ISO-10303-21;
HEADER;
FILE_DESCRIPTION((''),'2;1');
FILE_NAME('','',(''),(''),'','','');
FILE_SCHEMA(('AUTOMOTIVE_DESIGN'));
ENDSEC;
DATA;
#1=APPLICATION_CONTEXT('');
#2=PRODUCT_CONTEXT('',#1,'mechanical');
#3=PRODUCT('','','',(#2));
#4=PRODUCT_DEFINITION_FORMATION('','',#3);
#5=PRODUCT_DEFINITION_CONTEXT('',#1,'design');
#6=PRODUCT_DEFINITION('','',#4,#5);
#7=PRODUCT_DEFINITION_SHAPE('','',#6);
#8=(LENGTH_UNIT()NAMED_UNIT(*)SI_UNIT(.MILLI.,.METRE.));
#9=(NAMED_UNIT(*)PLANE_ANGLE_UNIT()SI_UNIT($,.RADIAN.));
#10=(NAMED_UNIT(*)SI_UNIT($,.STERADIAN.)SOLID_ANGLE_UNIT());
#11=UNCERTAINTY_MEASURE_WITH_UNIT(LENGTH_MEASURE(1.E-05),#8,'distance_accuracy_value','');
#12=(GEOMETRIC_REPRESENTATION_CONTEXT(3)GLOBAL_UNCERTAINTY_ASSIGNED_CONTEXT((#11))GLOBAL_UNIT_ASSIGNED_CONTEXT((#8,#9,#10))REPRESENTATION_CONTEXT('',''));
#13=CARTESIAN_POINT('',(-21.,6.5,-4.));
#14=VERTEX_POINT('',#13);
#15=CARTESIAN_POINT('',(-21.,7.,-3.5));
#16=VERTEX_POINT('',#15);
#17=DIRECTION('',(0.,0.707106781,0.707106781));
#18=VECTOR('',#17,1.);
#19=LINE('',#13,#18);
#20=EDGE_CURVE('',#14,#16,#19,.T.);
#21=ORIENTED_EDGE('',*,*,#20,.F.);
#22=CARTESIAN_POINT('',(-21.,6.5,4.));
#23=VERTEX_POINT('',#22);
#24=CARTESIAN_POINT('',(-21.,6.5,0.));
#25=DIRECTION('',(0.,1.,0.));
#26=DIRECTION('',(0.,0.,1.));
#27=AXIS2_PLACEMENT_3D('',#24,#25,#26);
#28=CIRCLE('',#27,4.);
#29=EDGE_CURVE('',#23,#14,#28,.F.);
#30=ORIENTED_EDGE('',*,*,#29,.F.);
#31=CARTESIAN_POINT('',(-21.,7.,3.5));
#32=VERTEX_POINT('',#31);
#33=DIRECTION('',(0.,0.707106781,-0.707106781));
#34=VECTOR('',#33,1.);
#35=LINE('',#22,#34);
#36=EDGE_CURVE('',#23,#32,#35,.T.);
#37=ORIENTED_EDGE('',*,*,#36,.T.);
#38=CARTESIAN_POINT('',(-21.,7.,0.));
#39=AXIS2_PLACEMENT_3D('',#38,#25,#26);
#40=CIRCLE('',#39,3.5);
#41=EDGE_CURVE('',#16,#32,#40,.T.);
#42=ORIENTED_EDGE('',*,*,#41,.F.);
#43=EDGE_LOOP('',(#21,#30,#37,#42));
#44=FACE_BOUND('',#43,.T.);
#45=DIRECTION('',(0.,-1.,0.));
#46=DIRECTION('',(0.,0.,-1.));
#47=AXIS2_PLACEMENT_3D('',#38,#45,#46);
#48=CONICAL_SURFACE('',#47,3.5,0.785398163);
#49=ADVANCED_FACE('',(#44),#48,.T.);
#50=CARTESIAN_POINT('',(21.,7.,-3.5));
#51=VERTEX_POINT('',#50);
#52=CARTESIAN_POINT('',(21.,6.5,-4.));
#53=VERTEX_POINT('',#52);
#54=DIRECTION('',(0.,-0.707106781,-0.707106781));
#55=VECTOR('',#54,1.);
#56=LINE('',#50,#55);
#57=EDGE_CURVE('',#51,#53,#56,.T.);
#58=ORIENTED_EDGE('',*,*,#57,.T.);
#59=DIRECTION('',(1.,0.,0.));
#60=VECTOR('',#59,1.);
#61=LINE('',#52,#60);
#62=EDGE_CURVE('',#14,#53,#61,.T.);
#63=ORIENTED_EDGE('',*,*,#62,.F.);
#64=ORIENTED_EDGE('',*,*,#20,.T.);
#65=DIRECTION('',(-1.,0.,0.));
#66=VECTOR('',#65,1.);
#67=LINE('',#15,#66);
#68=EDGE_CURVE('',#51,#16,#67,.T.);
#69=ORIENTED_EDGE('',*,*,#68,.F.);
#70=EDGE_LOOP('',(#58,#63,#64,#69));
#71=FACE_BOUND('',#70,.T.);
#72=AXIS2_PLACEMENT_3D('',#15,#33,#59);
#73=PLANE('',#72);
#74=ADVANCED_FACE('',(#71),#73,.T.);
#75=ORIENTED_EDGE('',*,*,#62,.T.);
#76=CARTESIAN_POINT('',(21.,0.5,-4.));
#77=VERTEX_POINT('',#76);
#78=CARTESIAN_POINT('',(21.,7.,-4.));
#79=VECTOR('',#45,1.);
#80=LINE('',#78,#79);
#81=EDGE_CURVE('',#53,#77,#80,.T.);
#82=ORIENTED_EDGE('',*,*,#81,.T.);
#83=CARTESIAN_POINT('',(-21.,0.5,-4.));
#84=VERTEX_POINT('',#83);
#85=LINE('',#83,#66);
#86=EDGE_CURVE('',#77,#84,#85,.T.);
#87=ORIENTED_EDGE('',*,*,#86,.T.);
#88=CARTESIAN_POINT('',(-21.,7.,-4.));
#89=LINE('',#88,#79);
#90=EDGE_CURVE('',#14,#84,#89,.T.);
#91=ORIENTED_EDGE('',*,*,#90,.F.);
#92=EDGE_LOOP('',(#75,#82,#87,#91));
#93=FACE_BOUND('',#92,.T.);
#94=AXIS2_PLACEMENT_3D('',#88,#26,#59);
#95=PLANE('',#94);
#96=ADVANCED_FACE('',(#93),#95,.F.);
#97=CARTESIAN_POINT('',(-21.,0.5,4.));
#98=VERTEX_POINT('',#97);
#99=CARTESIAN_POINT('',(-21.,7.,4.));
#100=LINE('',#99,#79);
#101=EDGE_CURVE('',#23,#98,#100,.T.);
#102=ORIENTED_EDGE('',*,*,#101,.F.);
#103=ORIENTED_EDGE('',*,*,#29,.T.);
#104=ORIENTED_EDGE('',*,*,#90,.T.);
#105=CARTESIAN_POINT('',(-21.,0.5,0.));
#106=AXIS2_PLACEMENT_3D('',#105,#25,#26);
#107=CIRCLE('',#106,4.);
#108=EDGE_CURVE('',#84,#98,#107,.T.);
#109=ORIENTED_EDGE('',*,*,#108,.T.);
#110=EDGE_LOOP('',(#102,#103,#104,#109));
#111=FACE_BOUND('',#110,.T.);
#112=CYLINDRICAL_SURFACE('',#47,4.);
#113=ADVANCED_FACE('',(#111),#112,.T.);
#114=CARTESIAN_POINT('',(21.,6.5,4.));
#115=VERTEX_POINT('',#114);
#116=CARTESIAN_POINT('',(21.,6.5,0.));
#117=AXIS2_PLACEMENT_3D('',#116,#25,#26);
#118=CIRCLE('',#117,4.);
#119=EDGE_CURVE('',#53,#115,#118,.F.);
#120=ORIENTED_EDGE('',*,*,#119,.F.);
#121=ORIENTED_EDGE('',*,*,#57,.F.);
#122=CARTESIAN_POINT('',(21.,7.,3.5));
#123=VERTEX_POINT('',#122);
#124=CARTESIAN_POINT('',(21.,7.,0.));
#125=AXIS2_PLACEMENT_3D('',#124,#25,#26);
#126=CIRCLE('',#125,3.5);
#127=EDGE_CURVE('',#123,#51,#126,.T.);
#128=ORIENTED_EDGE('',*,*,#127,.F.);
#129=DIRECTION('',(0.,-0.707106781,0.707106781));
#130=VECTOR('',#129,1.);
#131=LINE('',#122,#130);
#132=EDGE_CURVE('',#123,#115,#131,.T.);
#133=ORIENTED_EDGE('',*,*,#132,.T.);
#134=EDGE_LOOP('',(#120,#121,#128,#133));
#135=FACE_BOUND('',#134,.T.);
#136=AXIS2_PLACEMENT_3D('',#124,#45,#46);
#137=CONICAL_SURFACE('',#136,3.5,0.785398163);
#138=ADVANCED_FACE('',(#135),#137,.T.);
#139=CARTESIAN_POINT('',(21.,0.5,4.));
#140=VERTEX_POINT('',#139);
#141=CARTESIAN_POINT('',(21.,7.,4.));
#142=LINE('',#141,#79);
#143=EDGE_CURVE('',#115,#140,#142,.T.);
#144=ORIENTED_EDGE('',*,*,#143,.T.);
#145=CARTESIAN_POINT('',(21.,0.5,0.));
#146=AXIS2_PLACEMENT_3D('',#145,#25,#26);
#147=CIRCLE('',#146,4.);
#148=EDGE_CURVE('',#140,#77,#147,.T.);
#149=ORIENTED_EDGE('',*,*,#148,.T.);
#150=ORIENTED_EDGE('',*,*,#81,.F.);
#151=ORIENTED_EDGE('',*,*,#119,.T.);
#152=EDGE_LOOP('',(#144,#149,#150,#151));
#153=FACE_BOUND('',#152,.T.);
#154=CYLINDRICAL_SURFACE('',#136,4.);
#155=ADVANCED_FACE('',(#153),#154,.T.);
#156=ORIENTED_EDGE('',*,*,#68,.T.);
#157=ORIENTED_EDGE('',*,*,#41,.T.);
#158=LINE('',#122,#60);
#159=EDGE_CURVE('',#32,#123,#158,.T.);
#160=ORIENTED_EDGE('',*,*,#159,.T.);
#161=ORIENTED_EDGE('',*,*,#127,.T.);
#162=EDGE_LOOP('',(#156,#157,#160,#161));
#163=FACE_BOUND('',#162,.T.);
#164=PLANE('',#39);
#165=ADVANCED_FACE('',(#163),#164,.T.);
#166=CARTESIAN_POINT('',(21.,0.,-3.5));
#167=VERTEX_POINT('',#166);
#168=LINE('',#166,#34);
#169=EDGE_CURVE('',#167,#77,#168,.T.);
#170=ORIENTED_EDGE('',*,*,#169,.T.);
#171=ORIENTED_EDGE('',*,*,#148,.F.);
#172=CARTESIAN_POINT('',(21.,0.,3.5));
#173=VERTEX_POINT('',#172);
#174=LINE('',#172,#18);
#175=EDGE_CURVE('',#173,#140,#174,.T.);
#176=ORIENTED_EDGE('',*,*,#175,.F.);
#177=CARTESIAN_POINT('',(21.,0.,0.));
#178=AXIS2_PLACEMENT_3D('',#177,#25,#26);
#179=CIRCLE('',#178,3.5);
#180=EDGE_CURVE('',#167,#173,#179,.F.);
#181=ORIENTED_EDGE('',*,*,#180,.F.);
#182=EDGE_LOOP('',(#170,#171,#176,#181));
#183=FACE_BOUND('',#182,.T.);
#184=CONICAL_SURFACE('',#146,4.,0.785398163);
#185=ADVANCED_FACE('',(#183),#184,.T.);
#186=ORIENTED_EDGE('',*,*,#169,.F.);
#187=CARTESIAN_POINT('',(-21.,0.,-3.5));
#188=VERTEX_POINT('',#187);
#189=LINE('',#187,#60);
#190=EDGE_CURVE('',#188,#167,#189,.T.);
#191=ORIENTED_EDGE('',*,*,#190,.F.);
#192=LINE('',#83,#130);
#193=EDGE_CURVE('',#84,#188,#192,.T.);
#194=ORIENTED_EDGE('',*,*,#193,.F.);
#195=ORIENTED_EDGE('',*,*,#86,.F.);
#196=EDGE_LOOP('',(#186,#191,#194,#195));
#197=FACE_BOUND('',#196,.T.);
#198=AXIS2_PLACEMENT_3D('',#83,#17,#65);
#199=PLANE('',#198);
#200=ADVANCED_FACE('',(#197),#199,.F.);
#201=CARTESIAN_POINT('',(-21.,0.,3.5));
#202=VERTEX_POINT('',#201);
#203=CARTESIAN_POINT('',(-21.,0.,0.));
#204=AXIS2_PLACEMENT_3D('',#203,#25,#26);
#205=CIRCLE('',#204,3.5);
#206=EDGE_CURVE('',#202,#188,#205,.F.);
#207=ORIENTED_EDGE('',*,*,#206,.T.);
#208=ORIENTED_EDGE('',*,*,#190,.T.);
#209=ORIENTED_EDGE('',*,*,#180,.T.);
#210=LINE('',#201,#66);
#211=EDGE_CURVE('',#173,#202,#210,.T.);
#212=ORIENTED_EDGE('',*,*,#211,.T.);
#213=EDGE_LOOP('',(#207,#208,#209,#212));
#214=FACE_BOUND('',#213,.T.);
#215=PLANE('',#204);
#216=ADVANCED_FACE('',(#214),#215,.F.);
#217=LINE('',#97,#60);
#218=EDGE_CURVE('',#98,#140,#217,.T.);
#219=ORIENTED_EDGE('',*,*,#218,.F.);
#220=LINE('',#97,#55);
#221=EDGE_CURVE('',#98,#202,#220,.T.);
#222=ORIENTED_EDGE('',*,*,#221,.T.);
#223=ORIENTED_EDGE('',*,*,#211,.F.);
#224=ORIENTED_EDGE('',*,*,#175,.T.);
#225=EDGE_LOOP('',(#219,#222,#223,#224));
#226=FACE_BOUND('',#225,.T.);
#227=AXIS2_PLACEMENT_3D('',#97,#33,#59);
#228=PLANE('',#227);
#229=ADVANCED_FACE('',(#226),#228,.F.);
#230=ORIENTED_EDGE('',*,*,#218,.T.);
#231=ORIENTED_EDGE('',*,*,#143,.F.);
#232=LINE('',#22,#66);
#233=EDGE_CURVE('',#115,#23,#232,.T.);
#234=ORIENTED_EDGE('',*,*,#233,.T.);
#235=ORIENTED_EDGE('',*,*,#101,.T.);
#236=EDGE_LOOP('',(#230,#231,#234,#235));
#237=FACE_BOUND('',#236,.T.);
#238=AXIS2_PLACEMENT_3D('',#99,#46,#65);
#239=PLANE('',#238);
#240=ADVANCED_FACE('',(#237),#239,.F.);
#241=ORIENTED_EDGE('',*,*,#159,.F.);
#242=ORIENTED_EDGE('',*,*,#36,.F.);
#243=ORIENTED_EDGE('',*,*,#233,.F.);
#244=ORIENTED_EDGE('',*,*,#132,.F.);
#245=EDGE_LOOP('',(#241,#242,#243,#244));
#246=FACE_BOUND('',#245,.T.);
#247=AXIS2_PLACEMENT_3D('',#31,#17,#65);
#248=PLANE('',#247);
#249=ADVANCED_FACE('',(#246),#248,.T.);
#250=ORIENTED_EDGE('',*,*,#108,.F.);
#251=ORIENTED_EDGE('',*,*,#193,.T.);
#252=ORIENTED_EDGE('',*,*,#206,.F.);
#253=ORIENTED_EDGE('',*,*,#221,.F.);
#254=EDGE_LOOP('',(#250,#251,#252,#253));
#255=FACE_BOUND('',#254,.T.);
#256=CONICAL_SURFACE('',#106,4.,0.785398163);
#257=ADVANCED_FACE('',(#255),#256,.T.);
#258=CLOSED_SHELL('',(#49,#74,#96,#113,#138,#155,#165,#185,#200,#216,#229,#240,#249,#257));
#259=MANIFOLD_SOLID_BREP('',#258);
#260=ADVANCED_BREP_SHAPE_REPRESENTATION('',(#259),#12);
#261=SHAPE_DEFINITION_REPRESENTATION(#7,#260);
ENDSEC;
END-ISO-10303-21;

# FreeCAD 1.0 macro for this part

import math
import FreeCAD as App
import Part
import Sketcher

V = App.Vector


def edges_at(feature, points):
    """Names of the edges that pass closest to the given points."""
    edges = feature.Shape.Edges
    near = lambda p: min(range(len(edges)), key=lambda i: edges[i].distToShape(Part.Vertex(*p))[0])
    return sorted({f"Edge{near(p) + 1}" for p in points})

doc = App.newDocument("Part")
params = doc.addObject("Spreadsheet::Sheet", "Params")
for row, (alias, value) in enumerate([
    ("sketch1_radius", "4 mm"),
    ("sketch1_width", "42 mm"),
    ("pad1_length", "7 mm"),
    ("chamfer_size", "0.5 mm"),
], start=1):
    params.set(f"A{row}", alias)
    params.set(f"B{row}", "=" + value)
    params.setAlias(f"B{row}", alias)

body = doc.addObject("PartDesign::Body", "Body")

sketch1 = body.newObject("Sketcher::SketchObject", "Sketch")
sketch1.AttachmentSupport = (doc.getObject("XZ_Plane"), [""])
sketch1.MapMode = "FlatFace"
sketch1.addGeometry(Part.LineSegment(V(21, -4, 0), V(-21, -4, 0)), False)
sketch1.addGeometry(Part.ArcOfCircle(Part.Circle(V(-21, 0, 0), V(0, 0, 1), 4), math.radians(90), math.radians(270)), False)
sketch1.addGeometry(Part.LineSegment(V(-21, 4, 0), V(21, 4, 0)), False)
sketch1.addGeometry(Part.ArcOfCircle(Part.Circle(V(21, 0, 0), V(0, 0, 1), 4), math.radians(-90), math.radians(90)), False)
sketch1.addConstraint(Sketcher.Constraint("Tangent", 0, 2, 1, 2))
sketch1.addConstraint(Sketcher.Constraint("Tangent", 1, 1, 2, 1))
sketch1.addConstraint(Sketcher.Constraint("Tangent", 2, 2, 3, 2))
sketch1.addConstraint(Sketcher.Constraint("Tangent", 3, 1, 0, 1))
sketch1.addConstraint(Sketcher.Constraint("Horizontal", 0))
sketch1.addConstraint(Sketcher.Constraint("Horizontal", 2))
sketch1.addConstraint(Sketcher.Constraint("Symmetric", 1, 3, 3, 3, -1, 1))
sketch1.addConstraint(Sketcher.Constraint("Radius", 1, 4.0))
sketch1.addConstraint(Sketcher.Constraint("DistanceX", 0, 2, 0, 1, 42.0))
sketch1.setExpression("Constraints[7]", "Params.sketch1_radius")
sketch1.setExpression("Constraints[8]", "Params.sketch1_width")
pad1 = body.newObject("PartDesign::Pad", "Pad")
pad1.Profile = sketch1
pad1.setExpression("Length", "Params.pad1_length")
pad1.Reversed = True
doc.recompute()

chamfer = body.newObject("PartDesign::Chamfer", "Chamfer")
chamfer.Base = (pad1, edges_at(pad1, [
    (25, 7, 0),
    (0, 7, -4),
    (-25, 7, 0),
    (0, 0, -4),
    (25, 0, 0),
    (0, 0, 4),
    (-25, 0, 0),
    (0, 7, 4),
]))
chamfer.setExpression("Size", "Params.chamfer_size")

doc.recompute()
